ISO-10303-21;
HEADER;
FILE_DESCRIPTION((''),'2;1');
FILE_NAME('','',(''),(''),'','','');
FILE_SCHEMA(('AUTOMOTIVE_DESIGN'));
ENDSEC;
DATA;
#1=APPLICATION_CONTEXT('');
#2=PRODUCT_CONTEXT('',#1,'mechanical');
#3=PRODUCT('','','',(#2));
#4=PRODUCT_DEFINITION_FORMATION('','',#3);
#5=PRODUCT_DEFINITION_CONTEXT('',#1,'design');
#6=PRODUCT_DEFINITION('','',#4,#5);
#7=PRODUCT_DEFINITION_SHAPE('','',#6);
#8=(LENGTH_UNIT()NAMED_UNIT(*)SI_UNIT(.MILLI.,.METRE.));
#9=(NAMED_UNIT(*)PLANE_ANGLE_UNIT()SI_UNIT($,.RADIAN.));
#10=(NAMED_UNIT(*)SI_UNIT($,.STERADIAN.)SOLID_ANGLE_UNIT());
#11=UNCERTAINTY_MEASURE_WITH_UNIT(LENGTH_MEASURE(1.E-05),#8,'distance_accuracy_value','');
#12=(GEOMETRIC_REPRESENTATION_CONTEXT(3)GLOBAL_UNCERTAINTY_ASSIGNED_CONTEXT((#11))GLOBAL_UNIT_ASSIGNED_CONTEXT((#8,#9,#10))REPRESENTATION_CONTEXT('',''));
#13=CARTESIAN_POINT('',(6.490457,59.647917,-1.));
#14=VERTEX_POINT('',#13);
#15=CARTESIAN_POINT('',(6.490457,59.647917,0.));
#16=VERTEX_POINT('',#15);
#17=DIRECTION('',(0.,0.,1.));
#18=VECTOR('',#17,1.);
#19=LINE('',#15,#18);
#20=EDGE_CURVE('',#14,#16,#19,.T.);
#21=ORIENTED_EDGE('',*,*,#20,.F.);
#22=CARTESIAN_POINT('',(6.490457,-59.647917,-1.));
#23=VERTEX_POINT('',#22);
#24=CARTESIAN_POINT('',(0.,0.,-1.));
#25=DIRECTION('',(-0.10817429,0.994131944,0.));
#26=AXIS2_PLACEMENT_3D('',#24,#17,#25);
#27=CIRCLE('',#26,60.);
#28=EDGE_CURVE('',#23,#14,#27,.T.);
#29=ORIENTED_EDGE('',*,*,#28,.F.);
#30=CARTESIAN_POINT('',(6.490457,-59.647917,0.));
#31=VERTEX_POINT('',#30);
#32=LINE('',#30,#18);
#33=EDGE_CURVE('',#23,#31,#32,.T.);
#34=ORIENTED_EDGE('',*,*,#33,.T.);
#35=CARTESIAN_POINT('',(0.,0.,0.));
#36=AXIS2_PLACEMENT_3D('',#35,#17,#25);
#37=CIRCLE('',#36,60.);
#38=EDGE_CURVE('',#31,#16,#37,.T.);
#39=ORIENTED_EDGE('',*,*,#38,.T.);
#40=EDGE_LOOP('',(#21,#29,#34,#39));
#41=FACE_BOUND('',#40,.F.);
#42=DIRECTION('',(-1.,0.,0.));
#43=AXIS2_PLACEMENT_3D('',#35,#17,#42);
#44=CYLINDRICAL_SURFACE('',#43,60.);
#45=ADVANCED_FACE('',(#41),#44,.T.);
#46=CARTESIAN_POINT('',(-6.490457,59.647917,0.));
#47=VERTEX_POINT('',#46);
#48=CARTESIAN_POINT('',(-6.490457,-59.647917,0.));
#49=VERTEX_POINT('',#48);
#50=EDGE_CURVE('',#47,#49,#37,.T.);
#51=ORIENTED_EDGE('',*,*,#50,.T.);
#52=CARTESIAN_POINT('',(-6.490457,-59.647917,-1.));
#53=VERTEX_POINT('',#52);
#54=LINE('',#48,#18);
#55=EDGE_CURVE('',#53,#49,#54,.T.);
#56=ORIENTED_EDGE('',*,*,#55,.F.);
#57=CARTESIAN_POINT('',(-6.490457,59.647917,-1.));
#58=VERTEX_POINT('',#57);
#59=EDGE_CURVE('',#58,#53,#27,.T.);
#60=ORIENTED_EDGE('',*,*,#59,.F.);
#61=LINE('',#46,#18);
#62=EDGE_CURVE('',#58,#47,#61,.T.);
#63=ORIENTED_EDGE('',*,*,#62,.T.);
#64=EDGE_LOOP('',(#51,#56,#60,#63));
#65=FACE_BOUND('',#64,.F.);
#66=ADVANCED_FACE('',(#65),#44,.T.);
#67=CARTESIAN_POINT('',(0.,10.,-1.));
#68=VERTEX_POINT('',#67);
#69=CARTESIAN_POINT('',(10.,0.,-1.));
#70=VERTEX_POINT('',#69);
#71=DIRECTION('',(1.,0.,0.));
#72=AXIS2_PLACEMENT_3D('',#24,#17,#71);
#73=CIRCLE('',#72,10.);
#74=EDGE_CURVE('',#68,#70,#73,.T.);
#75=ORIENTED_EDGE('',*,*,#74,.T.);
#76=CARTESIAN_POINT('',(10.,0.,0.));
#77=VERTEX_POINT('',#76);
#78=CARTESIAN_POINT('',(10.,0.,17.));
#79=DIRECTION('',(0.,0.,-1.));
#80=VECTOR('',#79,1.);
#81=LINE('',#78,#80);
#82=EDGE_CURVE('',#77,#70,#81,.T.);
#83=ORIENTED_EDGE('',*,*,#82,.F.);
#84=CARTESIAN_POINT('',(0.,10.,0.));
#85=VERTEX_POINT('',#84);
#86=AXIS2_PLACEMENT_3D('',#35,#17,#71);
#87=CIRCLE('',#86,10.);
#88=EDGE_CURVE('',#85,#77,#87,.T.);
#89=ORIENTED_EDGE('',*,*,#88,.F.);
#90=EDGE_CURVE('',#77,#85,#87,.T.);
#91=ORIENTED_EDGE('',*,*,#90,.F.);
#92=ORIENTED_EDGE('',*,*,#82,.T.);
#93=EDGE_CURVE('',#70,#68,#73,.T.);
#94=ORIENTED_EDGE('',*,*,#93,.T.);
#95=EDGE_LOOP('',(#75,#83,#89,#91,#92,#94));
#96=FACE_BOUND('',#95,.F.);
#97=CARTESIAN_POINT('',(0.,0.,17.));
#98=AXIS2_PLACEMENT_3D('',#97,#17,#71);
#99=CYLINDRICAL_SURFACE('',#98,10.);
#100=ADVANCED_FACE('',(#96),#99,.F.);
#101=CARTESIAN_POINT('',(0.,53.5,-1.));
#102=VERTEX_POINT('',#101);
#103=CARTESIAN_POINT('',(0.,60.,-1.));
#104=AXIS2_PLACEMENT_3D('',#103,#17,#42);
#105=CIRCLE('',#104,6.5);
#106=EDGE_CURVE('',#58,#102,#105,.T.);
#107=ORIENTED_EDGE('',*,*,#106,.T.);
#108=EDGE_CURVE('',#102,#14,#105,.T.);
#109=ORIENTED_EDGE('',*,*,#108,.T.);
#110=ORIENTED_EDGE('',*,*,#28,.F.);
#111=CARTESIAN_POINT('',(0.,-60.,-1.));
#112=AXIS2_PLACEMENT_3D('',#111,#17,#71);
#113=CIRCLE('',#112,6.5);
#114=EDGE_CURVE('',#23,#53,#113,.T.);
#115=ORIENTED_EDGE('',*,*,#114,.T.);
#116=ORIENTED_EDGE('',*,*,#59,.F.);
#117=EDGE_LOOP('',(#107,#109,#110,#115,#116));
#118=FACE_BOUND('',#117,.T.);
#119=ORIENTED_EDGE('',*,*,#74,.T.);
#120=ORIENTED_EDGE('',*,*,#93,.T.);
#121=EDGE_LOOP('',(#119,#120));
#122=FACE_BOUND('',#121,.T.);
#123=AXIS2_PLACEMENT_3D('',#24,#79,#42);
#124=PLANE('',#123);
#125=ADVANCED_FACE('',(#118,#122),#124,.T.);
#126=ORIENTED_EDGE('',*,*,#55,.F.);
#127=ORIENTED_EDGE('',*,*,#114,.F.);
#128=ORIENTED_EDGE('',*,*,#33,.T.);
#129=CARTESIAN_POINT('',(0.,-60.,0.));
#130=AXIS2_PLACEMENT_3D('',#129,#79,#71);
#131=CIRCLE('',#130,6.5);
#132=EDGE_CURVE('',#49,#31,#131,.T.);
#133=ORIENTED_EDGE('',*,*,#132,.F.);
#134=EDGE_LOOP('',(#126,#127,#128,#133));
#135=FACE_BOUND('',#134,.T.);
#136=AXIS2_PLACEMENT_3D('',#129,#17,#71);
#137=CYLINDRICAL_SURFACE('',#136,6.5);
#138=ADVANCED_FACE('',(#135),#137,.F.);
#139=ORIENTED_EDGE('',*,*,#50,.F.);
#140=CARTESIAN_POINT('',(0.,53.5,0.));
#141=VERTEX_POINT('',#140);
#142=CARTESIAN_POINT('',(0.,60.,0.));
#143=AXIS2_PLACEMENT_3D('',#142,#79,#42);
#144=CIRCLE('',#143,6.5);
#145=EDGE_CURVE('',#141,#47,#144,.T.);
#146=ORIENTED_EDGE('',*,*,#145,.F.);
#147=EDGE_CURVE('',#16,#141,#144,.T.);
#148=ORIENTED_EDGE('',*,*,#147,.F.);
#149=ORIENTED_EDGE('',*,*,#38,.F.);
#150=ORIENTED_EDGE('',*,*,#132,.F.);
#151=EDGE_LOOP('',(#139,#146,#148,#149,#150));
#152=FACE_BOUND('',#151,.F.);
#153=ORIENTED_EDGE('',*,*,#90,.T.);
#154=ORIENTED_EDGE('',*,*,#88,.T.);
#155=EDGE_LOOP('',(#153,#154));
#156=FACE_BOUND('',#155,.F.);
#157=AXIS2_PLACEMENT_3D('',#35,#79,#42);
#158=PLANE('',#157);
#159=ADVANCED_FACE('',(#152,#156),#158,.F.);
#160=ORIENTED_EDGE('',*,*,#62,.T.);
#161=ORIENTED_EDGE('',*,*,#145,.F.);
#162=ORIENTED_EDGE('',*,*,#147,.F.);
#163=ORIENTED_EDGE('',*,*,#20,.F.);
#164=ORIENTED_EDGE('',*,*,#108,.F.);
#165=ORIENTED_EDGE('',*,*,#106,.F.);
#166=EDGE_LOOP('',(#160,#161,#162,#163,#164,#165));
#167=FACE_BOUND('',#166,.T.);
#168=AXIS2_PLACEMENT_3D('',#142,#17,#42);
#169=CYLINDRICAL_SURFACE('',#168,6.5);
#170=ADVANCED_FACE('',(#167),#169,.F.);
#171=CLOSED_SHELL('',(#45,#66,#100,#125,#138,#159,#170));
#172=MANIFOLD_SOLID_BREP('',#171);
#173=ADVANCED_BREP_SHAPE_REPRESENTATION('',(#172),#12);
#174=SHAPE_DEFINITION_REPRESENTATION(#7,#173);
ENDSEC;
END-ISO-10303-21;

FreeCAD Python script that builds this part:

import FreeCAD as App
import Part
import Sketcher

V = App.Vector
Q = App.Units.Quantity

doc = App.newDocument("Part")
params = doc.addObject("Spreadsheet::Sheet", "Params")
for row, (alias, value) in enumerate([
    ("sketch1_diameter", "20 mm"),
    ("pad1_length", "17 mm"),
    ("sketch2_diameter", "120 mm"),
    ("pad2_length", "1 mm"),
    ("sketch3_diameter", "13 mm"),
    ("pocket1_length", "1 mm"),
    ("sketch4_diameter", "20 mm"),
    ("pocket2_length", "65 mm"),
], start=1):
    params.set(f"A{row}", alias)
    params.set(f"B{row}", "=" + value)
    params.setAlias(f"B{row}", alias)

body = doc.addObject("PartDesign::Body", "Body")

# Sketch on XY plane
sketch1 = doc.addObject("Sketcher::SketchObject", "Sketch")
body.addObject(sketch1)
sketch1.AttachmentSupport = (doc.XY_Plane, [""])
sketch1.MapMode = "FlatFace"
sketch1.addGeometry(Part.Circle(V(0, 0, 0), V(0, 0, 1), 10), False)
sketch1.addConstraint(Sketcher.Constraint("Coincident", 0, 3, -1, 1))
sketch1.addConstraint(Sketcher.Constraint("Diameter", 0, Q("20 mm")))
sketch1.setExpression("Constraints[1]", "Params.sketch1_diameter")
pad1 = doc.addObject("PartDesign::Pad", "Pad")
body.addObject(pad1)
pad1.Profile = sketch1
pad1.setExpression("Length", "Params.pad1_length")

# Sketch on XY plane
sketch2 = doc.addObject("Sketcher::SketchObject", "Sketch001")
body.addObject(sketch2)
sketch2.AttachmentSupport = (doc.XY_Plane, [""])
sketch2.MapMode = "FlatFace"
sketch2.addGeometry(Part.Circle(V(0, 0, 0), V(0, 0, 1), 60), False)
sketch2.addConstraint(Sketcher.Constraint("Coincident", 0, 3, -1, 1))
sketch2.addConstraint(Sketcher.Constraint("Diameter", 0, Q("120 mm")))
sketch2.setExpression("Constraints[1]", "Params.sketch2_diameter")
pad2 = doc.addObject("PartDesign::Pad", "Pad001")
body.addObject(pad2)
pad2.Profile = sketch2
pad2.setExpression("Length", "Params.pad2_length")
pad2.Reversed = True

# Sketch on XY plane
sketch3 = doc.addObject("Sketcher::SketchObject", "Sketch002")
body.addObject(sketch3)
sketch3.AttachmentSupport = (doc.XY_Plane, [""])
sketch3.MapMode = "FlatFace"
sketch3.addGeometry(Part.Circle(V(0, 60, 0), V(0, 0, 1), 6), False)
sketch3.addConstraint(Sketcher.Constraint("PointOnObject", 0, 3, -2))
sketch3.addConstraint(Sketcher.Constraint("Diameter", 0, Q("13 mm")))
sketch3.addConstraint(Sketcher.Constraint("DistanceY", -1, 1, 0, 3, Q("60 mm")))
sketch3.setExpression("Constraints[1]", "Params.sketch3_diameter")
pocket1 = doc.addObject("PartDesign::Pocket", "Pocket")
body.addObject(pocket1)
pocket1.Profile = sketch3
pocket1.setExpression("Length", "Params.pocket1_length")
doc.recompute()

polarpattern = doc.addObject("PartDesign::PolarPattern", "PolarPattern")
body.addObject(polarpattern)
polarpattern.Originals = [pocket1]
polarpattern.Axis = (doc.Z_Axis, [""])
polarpattern.Angle = 360
polarpattern.Occurrences = 2
body.Tip = polarpattern

# Sketch on XY plane
sketch4 = doc.addObject("Sketcher::SketchObject", "Sketch003")
body.addObject(sketch4)
sketch4.AttachmentSupport = (doc.XY_Plane, [""])
sketch4.MapMode = "FlatFace"
sketch4.AttachmentOffset = App.Placement(V(0, 0, 17), App.Rotation())
sketch4.addGeometry(Part.Circle(V(0, 0, 0), V(0, 0, 1), 10), False)
sketch4.addConstraint(Sketcher.Constraint("Coincident", 0, 3, -1, 1))
sketch4.addConstraint(Sketcher.Constraint("Diameter", 0, Q("20 mm")))
sketch4.setExpression("Constraints[1]", "Params.sketch4_diameter")
pocket2 = doc.addObject("PartDesign::Pocket", "Pocket001")
body.addObject(pocket2)
pocket2.Profile = sketch4
pocket2.setExpression("Length", "Params.pocket2_length")

doc.recompute()
